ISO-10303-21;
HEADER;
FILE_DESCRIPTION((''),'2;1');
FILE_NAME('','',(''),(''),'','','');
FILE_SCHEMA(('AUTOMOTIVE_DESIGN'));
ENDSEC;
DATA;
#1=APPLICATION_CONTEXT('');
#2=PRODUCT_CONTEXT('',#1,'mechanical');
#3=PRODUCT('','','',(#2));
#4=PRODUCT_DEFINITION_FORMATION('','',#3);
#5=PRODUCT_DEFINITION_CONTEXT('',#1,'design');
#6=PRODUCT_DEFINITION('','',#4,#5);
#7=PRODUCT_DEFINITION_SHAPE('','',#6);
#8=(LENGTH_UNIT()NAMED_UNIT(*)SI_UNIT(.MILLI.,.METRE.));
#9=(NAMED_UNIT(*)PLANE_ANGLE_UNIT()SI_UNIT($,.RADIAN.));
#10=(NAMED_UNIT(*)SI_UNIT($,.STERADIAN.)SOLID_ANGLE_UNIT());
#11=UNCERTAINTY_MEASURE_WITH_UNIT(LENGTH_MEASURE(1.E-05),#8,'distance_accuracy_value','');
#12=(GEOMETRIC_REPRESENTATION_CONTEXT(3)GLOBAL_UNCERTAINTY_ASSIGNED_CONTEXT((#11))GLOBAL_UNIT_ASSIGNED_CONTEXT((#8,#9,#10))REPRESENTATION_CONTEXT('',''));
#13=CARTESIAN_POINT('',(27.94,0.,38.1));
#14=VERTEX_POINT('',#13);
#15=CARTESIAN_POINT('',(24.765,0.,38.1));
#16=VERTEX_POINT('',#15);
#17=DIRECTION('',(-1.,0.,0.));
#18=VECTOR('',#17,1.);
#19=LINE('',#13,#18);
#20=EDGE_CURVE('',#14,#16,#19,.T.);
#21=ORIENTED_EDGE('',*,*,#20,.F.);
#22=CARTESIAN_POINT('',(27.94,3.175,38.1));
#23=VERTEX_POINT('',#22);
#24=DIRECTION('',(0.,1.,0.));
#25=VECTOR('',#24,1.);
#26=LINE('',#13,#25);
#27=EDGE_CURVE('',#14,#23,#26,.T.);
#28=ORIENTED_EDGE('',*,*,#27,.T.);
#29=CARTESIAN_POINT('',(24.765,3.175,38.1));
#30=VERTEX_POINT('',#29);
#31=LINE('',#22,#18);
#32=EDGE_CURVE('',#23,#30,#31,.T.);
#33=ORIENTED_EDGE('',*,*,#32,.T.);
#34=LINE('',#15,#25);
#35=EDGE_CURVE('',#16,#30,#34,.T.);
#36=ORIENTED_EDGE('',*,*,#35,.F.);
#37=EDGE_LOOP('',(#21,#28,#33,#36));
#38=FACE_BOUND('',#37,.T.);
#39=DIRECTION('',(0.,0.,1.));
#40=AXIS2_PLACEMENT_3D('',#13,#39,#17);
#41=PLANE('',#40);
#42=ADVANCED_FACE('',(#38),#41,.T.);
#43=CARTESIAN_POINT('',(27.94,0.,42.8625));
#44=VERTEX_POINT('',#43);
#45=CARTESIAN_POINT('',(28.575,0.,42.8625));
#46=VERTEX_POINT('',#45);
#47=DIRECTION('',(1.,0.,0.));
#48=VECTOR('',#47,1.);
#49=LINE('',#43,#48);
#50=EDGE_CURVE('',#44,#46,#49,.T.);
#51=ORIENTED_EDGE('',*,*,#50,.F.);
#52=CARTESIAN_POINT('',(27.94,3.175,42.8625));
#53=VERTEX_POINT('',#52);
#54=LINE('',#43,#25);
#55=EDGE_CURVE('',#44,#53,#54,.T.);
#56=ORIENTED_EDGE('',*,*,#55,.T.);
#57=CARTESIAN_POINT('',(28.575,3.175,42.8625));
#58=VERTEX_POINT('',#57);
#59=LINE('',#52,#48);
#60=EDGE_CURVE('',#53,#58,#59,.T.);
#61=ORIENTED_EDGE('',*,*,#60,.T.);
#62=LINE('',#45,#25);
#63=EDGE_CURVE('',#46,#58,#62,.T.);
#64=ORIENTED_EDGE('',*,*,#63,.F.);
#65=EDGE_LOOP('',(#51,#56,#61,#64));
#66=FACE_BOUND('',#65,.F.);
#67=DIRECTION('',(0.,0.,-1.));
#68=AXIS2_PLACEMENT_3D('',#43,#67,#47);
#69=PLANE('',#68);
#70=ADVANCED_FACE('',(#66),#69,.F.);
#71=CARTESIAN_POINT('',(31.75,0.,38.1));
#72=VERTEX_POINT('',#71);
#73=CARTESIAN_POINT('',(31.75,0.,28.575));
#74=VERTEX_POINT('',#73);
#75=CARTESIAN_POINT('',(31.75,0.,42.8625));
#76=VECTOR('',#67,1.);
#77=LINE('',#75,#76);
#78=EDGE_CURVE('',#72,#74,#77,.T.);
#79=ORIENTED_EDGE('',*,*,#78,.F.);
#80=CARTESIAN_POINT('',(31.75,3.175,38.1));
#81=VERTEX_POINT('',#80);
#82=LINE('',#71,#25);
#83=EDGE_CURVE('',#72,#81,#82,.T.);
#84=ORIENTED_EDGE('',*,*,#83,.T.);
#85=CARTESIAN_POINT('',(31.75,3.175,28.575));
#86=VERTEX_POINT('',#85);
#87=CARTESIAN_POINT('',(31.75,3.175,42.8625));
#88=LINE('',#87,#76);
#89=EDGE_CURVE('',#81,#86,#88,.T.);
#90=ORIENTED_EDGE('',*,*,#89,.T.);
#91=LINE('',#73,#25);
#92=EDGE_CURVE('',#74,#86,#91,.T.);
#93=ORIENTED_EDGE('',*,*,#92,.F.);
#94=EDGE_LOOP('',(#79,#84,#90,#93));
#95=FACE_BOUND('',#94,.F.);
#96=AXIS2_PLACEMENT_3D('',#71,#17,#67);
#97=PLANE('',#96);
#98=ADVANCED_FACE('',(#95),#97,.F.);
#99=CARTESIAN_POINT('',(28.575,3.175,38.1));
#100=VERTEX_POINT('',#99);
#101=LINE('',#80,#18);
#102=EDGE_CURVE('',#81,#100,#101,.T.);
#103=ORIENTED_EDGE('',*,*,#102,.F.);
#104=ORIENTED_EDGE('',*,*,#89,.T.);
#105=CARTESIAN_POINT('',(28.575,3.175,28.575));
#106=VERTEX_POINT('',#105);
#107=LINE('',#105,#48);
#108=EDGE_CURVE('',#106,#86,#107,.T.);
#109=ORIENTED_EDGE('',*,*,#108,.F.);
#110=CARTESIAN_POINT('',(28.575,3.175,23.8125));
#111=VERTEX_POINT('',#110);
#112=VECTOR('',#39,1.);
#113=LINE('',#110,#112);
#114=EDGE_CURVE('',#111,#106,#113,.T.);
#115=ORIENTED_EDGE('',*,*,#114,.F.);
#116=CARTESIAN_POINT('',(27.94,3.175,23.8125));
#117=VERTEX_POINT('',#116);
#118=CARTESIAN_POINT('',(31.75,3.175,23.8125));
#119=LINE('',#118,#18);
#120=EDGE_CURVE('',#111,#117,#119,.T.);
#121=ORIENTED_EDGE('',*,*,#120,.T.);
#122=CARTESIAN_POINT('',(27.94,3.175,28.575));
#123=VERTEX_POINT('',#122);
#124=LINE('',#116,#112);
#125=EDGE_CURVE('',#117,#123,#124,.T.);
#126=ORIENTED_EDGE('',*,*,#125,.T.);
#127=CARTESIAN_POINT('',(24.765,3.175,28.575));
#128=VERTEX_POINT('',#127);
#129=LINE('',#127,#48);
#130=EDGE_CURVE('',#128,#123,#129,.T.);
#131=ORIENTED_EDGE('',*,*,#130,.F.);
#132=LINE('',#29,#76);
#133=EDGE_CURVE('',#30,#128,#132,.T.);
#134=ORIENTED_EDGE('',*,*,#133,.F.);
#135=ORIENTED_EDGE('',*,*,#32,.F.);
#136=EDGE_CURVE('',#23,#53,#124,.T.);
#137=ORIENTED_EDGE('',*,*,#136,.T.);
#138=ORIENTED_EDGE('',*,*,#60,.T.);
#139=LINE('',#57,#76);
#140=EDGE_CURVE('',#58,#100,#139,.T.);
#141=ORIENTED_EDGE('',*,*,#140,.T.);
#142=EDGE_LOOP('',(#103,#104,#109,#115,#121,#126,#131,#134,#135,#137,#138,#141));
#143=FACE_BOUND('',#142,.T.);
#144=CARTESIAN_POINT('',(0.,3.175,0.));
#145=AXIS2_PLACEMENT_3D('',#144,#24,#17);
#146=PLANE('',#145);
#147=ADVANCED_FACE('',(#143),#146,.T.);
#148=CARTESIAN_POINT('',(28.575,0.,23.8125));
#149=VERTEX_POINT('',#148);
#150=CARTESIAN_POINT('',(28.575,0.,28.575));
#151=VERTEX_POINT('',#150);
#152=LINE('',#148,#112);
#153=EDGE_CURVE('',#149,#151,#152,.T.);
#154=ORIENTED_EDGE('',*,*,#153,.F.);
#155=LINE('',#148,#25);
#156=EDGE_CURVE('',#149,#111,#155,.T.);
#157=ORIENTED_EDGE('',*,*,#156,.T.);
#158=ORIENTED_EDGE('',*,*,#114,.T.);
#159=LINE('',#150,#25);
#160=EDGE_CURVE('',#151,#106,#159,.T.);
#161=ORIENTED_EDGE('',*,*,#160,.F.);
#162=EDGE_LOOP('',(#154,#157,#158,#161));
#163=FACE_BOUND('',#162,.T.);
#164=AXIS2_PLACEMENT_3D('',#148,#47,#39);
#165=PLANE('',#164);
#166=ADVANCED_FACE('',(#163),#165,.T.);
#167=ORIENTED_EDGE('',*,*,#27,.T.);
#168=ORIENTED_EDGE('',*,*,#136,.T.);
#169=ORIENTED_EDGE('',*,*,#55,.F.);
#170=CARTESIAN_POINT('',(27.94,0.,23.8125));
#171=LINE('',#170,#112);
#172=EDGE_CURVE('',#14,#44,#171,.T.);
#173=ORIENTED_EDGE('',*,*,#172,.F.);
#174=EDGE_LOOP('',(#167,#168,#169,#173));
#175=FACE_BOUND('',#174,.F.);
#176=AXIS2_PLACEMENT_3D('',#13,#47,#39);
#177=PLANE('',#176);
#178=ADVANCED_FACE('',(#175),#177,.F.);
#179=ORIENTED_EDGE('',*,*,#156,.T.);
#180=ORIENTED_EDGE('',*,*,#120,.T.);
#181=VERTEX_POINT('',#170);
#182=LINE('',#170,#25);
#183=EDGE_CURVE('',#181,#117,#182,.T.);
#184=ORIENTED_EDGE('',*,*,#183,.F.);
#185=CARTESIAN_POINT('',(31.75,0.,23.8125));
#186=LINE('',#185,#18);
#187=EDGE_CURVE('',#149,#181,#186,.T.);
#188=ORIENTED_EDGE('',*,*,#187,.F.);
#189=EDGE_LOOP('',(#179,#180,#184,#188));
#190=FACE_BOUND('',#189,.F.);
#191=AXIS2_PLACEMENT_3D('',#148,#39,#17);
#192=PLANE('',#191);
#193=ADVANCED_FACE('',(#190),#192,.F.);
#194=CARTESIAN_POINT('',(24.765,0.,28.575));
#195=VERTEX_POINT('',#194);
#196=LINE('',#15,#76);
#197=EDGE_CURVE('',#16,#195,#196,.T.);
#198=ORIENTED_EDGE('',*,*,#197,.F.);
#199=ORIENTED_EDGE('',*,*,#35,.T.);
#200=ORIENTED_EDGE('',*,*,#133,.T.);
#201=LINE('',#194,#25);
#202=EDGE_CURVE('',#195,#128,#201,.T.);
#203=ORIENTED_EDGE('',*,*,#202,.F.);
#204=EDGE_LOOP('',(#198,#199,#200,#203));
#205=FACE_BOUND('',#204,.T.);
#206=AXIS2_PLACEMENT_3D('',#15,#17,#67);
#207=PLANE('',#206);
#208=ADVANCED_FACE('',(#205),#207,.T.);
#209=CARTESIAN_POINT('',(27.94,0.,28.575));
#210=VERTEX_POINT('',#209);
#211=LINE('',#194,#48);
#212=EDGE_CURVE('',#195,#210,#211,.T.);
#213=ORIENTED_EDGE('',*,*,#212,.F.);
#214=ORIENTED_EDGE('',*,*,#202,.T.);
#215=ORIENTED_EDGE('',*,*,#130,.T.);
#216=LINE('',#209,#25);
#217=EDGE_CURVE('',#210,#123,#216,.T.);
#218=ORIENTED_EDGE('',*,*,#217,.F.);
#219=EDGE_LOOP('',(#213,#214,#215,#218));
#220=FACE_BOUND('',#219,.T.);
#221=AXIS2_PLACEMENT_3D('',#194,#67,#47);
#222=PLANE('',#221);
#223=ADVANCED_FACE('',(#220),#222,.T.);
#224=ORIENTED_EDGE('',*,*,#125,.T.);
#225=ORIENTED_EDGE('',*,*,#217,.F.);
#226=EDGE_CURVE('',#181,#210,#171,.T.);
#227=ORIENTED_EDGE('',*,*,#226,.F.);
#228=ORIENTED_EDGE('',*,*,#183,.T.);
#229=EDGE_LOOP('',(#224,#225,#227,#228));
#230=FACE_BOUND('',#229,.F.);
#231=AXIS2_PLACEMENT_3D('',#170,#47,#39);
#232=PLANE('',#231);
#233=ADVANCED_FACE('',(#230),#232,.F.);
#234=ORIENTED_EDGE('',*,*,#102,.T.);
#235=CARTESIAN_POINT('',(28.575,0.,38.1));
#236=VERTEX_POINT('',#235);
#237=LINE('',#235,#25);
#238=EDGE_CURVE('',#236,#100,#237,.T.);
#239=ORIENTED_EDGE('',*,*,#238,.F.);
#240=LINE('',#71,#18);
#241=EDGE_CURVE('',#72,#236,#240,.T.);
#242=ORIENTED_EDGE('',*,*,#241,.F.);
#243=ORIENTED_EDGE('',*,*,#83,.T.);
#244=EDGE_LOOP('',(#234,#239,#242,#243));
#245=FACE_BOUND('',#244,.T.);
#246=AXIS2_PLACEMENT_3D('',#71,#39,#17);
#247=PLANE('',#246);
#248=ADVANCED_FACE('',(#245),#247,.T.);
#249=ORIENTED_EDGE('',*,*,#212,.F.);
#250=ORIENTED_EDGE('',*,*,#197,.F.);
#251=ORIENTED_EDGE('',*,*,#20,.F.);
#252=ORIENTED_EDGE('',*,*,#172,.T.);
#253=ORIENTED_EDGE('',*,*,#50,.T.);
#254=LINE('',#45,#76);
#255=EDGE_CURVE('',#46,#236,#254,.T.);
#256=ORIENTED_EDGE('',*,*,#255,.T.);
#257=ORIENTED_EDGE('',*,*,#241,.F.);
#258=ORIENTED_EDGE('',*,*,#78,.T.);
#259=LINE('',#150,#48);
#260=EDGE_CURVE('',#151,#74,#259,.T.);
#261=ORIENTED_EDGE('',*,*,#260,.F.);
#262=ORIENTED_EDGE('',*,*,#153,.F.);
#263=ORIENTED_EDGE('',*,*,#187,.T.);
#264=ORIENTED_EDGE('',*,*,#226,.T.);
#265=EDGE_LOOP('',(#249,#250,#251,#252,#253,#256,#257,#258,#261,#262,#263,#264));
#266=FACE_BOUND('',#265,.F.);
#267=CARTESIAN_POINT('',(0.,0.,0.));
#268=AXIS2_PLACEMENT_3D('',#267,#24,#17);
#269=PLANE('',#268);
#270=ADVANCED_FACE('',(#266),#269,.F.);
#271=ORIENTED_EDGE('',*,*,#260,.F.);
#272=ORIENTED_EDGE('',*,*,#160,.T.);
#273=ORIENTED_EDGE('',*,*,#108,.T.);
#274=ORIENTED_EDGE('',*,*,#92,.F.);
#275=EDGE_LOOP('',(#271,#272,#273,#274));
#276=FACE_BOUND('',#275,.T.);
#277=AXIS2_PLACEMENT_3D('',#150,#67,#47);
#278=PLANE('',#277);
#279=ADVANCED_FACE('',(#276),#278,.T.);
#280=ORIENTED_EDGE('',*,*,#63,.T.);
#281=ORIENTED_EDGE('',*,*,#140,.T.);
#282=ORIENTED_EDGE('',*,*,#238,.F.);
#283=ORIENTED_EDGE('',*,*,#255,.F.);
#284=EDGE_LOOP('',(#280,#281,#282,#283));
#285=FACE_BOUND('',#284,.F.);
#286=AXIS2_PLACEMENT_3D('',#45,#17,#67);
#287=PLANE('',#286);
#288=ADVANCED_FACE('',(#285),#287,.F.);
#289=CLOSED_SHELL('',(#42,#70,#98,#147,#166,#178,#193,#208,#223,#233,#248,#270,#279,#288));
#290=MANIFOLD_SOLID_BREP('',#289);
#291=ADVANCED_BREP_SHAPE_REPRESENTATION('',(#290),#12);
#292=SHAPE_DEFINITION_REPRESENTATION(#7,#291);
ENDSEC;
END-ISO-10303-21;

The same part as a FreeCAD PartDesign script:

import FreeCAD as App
import Part
import Sketcher

V = App.Vector
Q = App.Units.Quantity

doc = App.newDocument("Part")
body = doc.addObject("PartDesign::Body", "Body")

# Sketch on XZ plane
sketch1 = body.newObject("Sketcher::SketchObject", "Sketch")
sketch1.AttachmentSupport = (doc.getObject("XZ_Plane"), [""])
sketch1.MapMode = "FlatFace"
sketch1.addGeometry(Part.LineSegment(V(27.9, 38.1, 0), V(27.9, 42.9, 0)), False)
sketch1.addGeometry(Part.LineSegment(V(27.9, 42.9, 0), V(28.6, 42.9, 0)), False)
sketch1.addGeometry(Part.LineSegment(V(28.6, 42.9, 0), V(28.6, 38.1, 0)), False)
sketch1.addGeometry(Part.LineSegment(V(28.6, 38.1, 0), V(31.8, 38.1, 0)), False)
sketch1.addGeometry(Part.LineSegment(V(31.8, 38.1, 0), V(31.8, 28.6, 0)), False)
sketch1.addGeometry(Part.LineSegment(V(31.8, 28.6, 0), V(28.6, 28.6, 0)), False)
sketch1.addGeometry(Part.LineSegment(V(28.6, 28.6, 0), V(28.6, 23.8, 0)), False)
sketch1.addGeometry(Part.LineSegment(V(28.6, 23.8, 0), V(27.9, 23.8, 0)), False)
sketch1.addGeometry(Part.LineSegment(V(27.9, 23.8, 0), V(27.9, 28.6, 0)), False)
sketch1.addGeometry(Part.LineSegment(V(27.9, 28.6, 0), V(24.8, 28.6, 0)), False)
sketch1.addGeometry(Part.LineSegment(V(24.8, 28.6, 0), V(24.8, 38.1, 0)), False)
sketch1.addGeometry(Part.LineSegment(V(24.8, 38.1, 0), V(27.9, 38.1, 0)), False)
sketch1.addConstraint(Sketcher.Constraint("Coincident", 0, 2, 1, 1))
sketch1.addConstraint(Sketcher.Constraint("Coincident", 1, 2, 2, 1))
sketch1.addConstraint(Sketcher.Constraint("Coincident", 2, 2, 3, 1))
sketch1.addConstraint(Sketcher.Constraint("Coincident", 3, 2, 4, 1))
sketch1.addConstraint(Sketcher.Constraint("Coincident", 4, 2, 5, 1))
sketch1.addConstraint(Sketcher.Constraint("Coincident", 5, 2, 6, 1))
sketch1.addConstraint(Sketcher.Constraint("Coincident", 6, 2, 7, 1))
sketch1.addConstraint(Sketcher.Constraint("Coincident", 7, 2, 8, 1))
sketch1.addConstraint(Sketcher.Constraint("Coincident", 8, 2, 9, 1))
sketch1.addConstraint(Sketcher.Constraint("Coincident", 9, 2, 10, 1))
sketch1.addConstraint(Sketcher.Constraint("Coincident", 10, 2, 11, 1))
sketch1.addConstraint(Sketcher.Constraint("Coincident", 11, 2, 0, 1))
sketch1.addConstraint(Sketcher.Constraint("Vertical", 0))
sketch1.addConstraint(Sketcher.Constraint("Horizontal", 1))
sketch1.addConstraint(Sketcher.Constraint("Vertical", 2))
sketch1.addConstraint(Sketcher.Constraint("Horizontal", 3))
sketch1.addConstraint(Sketcher.Constraint("Vertical", 4))
sketch1.addConstraint(Sketcher.Constraint("Horizontal", 5))
sketch1.addConstraint(Sketcher.Constraint("Vertical", 6))
sketch1.addConstraint(Sketcher.Constraint("Horizontal", 7))
sketch1.addConstraint(Sketcher.Constraint("Vertical", 8))
sketch1.addConstraint(Sketcher.Constraint("Horizontal", 9))
sketch1.addConstraint(Sketcher.Constraint("Vertical", 10))
sketch1.addConstraint(Sketcher.Constraint("Horizontal", 11))
sketch1.addConstraint(Sketcher.Constraint("Horizontal", 5, 2, 8, 2))
sketch1.addConstraint(Sketcher.Constraint("Horizontal", 3, 2, 10, 2))
sketch1.addConstraint(Sketcher.Constraint("Vertical", 2, 2, 5, 2))
sketch1.addConstraint(Sketcher.Constraint("Vertical", 0, 2, 7, 2))
sketch1.addConstraint(Sketcher.Constraint("Equal", 5, 9))
sketch1.addConstraint(Sketcher.Constraint("Equal", 2, 6))
sketch1.addConstraint(Sketcher.Constraint("DistanceX", 3, 1, 3, 2, Q("0.125 in")))
sketch1.addConstraint(Sketcher.Constraint("DistanceY", 0, 1, 0, 2, Q("0.1875 in")))
sketch1.addConstraint(Sketcher.Constraint("DistanceX", 0, 2, 3, 2, Q("0.15 in")))
sketch1.addConstraint(Sketcher.Constraint("DistanceY", 6, 2, 1, 2, Q("0.75 in")))
sketch1.addConstraint(Sketcher.Constraint("DistanceX", -1, 1, 0, 2, Q("1.1 in")))
sketch1.addConstraint(Sketcher.Constraint("DistanceY", -1, 1, 2, 2, Q("1.5 in")))
pad1 = body.newObject("PartDesign::Pad", "Pad")
pad1.Profile = sketch1
pad1.Length = Q("0.125 in")
pad1.Reversed = True

doc.recompute()
